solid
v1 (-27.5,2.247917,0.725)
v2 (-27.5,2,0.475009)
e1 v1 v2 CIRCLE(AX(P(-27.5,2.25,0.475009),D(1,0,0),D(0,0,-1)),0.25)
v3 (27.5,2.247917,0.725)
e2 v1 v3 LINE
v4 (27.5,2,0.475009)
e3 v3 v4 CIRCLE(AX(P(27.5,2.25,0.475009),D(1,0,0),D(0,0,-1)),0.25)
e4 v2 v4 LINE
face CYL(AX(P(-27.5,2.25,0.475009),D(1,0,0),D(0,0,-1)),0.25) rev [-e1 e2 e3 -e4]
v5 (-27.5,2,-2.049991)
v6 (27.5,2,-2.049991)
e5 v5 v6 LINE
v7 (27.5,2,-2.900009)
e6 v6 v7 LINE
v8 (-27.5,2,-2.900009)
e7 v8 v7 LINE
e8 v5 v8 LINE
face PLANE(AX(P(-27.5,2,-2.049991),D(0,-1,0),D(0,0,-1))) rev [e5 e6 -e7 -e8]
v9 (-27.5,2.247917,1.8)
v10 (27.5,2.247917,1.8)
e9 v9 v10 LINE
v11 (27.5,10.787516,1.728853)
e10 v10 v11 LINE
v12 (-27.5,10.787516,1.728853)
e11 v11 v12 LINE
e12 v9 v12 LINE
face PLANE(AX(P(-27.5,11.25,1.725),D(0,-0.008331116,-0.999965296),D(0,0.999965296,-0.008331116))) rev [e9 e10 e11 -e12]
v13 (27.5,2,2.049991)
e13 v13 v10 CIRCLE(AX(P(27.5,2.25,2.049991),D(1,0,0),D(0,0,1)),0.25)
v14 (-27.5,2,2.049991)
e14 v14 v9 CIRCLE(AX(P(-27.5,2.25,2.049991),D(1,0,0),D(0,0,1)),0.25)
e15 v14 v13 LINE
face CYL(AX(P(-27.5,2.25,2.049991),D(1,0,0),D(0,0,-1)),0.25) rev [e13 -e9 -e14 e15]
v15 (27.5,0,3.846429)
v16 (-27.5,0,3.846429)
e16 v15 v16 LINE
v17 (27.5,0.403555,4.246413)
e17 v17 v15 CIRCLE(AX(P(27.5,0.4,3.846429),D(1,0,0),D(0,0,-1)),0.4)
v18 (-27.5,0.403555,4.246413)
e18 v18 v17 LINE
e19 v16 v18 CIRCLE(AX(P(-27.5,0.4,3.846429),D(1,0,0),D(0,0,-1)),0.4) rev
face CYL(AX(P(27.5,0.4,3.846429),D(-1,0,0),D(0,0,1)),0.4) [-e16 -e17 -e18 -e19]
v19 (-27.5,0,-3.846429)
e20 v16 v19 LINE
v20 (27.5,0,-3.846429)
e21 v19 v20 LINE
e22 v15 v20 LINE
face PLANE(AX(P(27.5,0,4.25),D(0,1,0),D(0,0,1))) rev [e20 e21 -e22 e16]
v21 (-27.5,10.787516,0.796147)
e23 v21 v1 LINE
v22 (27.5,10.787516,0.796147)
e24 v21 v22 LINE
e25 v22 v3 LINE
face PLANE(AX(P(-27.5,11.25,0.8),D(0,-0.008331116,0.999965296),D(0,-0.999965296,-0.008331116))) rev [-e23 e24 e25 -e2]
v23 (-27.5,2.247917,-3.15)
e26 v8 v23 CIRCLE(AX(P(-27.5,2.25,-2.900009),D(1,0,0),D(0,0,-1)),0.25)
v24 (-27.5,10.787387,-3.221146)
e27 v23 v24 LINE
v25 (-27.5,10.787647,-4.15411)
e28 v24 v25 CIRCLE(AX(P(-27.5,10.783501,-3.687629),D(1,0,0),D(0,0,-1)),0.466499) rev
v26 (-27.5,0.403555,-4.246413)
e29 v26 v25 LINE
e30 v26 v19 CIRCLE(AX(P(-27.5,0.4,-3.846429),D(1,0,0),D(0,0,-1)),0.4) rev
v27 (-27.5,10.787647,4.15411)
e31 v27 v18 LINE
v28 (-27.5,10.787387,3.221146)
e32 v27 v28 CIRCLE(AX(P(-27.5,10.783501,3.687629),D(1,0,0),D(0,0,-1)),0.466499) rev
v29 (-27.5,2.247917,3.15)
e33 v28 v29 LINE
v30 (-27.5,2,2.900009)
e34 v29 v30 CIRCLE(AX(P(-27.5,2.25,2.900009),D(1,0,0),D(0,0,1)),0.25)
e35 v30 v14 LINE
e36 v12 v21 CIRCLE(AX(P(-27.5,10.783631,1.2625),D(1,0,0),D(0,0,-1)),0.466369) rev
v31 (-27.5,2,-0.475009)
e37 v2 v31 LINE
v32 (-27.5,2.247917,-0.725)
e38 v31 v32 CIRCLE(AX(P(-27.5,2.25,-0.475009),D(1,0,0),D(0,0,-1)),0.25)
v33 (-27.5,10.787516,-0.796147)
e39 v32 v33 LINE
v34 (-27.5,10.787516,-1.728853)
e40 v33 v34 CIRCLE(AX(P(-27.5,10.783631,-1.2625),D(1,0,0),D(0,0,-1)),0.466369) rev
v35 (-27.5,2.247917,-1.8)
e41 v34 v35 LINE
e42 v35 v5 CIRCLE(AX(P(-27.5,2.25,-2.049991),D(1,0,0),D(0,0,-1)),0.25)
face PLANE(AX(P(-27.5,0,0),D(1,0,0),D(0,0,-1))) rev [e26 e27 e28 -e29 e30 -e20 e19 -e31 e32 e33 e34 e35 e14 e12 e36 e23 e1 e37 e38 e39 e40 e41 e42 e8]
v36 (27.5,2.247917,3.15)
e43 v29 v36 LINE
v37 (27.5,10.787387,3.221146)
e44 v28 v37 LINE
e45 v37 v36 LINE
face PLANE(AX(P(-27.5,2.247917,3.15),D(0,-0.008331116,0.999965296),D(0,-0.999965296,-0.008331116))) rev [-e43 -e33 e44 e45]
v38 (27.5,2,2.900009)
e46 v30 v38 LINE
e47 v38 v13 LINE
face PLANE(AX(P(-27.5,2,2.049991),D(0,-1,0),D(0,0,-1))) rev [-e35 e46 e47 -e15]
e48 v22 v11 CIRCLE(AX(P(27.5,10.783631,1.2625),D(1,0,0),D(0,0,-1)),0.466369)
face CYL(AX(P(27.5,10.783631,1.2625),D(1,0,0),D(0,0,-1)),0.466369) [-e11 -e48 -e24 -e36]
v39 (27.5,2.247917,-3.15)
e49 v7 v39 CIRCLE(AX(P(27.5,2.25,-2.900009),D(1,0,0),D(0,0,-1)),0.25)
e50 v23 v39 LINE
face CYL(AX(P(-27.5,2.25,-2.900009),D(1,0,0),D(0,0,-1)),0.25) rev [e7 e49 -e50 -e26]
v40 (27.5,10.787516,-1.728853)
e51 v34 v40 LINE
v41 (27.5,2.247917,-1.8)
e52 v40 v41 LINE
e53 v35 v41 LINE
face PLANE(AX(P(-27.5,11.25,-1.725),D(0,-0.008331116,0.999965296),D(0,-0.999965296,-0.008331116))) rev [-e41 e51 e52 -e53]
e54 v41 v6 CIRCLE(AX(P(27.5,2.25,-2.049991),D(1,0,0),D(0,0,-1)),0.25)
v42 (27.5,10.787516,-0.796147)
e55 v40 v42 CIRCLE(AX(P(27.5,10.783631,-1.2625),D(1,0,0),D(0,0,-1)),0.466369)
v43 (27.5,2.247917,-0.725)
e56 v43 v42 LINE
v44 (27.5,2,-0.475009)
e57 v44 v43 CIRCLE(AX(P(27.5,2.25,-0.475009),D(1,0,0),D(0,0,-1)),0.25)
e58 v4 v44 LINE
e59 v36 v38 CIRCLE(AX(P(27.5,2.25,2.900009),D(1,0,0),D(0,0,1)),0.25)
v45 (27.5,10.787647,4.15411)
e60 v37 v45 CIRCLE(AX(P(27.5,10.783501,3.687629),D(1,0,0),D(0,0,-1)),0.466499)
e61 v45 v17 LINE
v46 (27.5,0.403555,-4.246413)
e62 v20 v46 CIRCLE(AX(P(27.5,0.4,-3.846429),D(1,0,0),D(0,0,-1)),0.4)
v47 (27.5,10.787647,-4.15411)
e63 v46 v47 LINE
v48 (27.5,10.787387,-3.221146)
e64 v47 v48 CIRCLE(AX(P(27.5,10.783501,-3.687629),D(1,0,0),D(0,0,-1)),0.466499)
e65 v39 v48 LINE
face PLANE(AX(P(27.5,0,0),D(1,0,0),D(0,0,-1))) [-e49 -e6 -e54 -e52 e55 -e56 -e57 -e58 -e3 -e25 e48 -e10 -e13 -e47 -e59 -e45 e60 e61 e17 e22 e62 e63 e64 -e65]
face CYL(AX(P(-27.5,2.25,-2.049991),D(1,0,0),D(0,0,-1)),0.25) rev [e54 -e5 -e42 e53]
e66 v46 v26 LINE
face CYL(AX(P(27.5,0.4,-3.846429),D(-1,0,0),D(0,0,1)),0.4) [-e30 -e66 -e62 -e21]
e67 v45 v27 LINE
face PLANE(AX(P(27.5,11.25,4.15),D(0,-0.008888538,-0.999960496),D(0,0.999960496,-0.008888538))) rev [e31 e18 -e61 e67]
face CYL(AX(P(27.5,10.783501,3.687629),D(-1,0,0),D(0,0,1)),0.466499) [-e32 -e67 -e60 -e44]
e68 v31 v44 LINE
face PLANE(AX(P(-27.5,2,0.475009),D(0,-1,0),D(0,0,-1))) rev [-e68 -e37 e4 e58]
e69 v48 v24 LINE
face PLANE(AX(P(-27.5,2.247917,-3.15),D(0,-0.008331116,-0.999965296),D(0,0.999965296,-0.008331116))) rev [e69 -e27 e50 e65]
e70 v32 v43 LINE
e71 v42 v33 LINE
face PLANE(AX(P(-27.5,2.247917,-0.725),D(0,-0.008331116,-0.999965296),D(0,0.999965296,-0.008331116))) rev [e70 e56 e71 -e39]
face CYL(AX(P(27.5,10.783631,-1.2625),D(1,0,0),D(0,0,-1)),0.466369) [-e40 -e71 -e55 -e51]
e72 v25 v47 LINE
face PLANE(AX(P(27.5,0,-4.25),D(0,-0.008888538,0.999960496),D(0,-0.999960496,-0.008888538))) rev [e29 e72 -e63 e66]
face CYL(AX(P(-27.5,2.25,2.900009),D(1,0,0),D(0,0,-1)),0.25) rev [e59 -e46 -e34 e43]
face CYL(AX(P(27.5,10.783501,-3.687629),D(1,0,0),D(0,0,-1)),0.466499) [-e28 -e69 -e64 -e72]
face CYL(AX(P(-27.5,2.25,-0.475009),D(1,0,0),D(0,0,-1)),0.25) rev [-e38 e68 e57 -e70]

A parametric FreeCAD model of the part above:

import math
import FreeCAD as App
import Part
import Sketcher
from FreeCAD import Vector
Q = App.Units.Quantity


def edges_at(feature, points):
    """Names of the edges that pass closest to the given points."""
    edges = feature.Shape.Edges
    near = lambda p: min(range(len(edges)), key=lambda i: edges[i].distToShape(Part.Vertex(*p))[0])
    return sorted({f"Edge{near(p) + 1}" for p in points})

doc = App.newDocument("Part")
body = doc.addObject("PartDesign::Body", "Body")

sketch1 = doc.addObject("Sketcher::SketchObject", "Sketch")
body.addObject(sketch1)
sketch1.AttachmentSupport = (doc.YZ_Plane, [""])
sketch1.MapMode = "FlatFace"
sketch1.addGeometry([
    Part.LineSegment(Vector(11.25, 4.15, 0), Vector(0, 4.25, 0)),
    Part.LineSegment(Vector(0, 4.25, 0), Vector(0, -4.25, 0)),
    Part.LineSegment(Vector(0, -4.25, 0), Vector(11.25, -4.15, 0)),
    Part.LineSegment(Vector(11.25, -4.15, 0), Vector(11.25, 4.15, 0)),
], False)
sketch1.addConstraint([
    Sketcher.Constraint("Coincident", 0, 2, 1, 1),
    Sketcher.Constraint("Coincident", 1, 2, 2, 1),
    Sketcher.Constraint("Coincident", 2, 2, 3, 1),
    Sketcher.Constraint("Coincident", 3, 2, 0, 1),
    Sketcher.Constraint("Vertical", 1),
    Sketcher.Constraint("Vertical", 3),
    Sketcher.Constraint("Symmetric", 0, 2, 1, 2, -1, 1),
    Sketcher.Constraint("Equal", 0, 2),
    Sketcher.Constraint("DistanceY", 1, 2, 1, 1, Q("8.5 mm")),
    Sketcher.Constraint("DistanceY", 3, 1, 3, 2, Q("8.3 mm")),
    Sketcher.Constraint("DistanceX", -1, 1, 2, 2, Q("11.25 mm")),
])
pad1 = doc.addObject("PartDesign::Pad", "Pad")
body.addObject(pad1)
pad1.Profile = sketch1
pad1.Length = 55
pad1.Midplane = True

sketch2 = doc.addObject("Sketcher::SketchObject", "Sketch001")
body.addObject(sketch2)
sketch2.AttachmentSupport = (doc.YZ_Plane, [""])
sketch2.MapMode = "FlatFace"
sketch2.AttachmentOffset = App.Placement(Vector(0, 0, 27.5), App.Rotation())
sketch2.addGeometry([
    Part.LineSegment(Vector(11.25, 0.8, 0), Vector(2.247917, 0.725, 0)),
    Part.ArcOfCircle(Part.Circle(Vector(2.25, 0.475009, 0), Vector(0, 0, 1), 0.25), math.radians(90.477343), math.radians(180)),
    Part.LineSegment(Vector(2, 0.475009, 0), Vector(2, -0.475009, 0)),
    Part.ArcOfCircle(Part.Circle(Vector(2.25, -0.475009, 0), Vector(0, 0, 1), 0.25), math.radians(180), math.radians(269.522657)),
    Part.LineSegment(Vector(2.247917, -0.725, 0), Vector(11.25, -0.8, 0)),
    Part.LineSegment(Vector(11.25, -0.8, 0), Vector(11.25, 0.8, 0)),
    Part.LineSegment(Vector(11.25, 1.725, 0), Vector(11.25, 3.225, 0)),
    Part.LineSegment(Vector(11.25, 3.225, 0), Vector(2.247917, 3.15, 0)),
    Part.ArcOfCircle(Part.Circle(Vector(2.25, 2.900009, 0), Vector(0, 0, 1), 0.25), math.radians(90.477343), math.radians(180)),
    Part.LineSegment(Vector(2, 2.900009, 0), Vector(2, 2.049991, 0)),
    Part.ArcOfCircle(Part.Circle(Vector(2.25, 2.049991, 0), Vector(0, 0, 1), 0.25), math.radians(180), math.radians(269.522657)),
    Part.LineSegment(Vector(2.247917, 1.8, 0), Vector(11.25, 1.725, 0)),
    Part.LineSegment(Vector(11.25, -3.225, 0), Vector(11.25, -1.725, 0)),
    Part.LineSegment(Vector(11.25, -1.725, 0), Vector(2.247917, -1.8, 0)),
    Part.ArcOfCircle(Part.Circle(Vector(2.25, -2.049991, 0), Vector(0, 0, 1), 0.25), math.radians(90.477343), math.radians(180)),
    Part.LineSegment(Vector(2, -2.049991, 0), Vector(2, -2.900009, 0)),
    Part.ArcOfCircle(Part.Circle(Vector(2.25, -2.900009, 0), Vector(0, 0, 1), 0.25), math.radians(180), math.radians(269.522657)),
    Part.LineSegment(Vector(2.247917, -3.15, 0), Vector(11.25, -3.225, 0)),
], False)
sketch2.addConstraint([
    Sketcher.Constraint("Tangent", 0, 2, 1, 1),
    Sketcher.Constraint("Tangent", 1, 2, 2, 1),
    Sketcher.Constraint("Tangent", 2, 2, 3, 1),
    Sketcher.Constraint("Tangent", 3, 2, 4, 1),
    Sketcher.Constraint("Coincident", 4, 2, 5, 1),
    Sketcher.Constraint("Coincident", 5, 2, 0, 1),
    Sketcher.Constraint("Coincident", 6, 2, 7, 1),
    Sketcher.Constraint("Tangent", 7, 2, 8, 1),
    Sketcher.Constraint("Tangent", 8, 2, 9, 1),
    Sketcher.Constraint("Tangent", 9, 2, 10, 1),
    Sketcher.Constraint("Tangent", 10, 2, 11, 1),
    Sketcher.Constraint("Coincident", 11, 2, 6, 1),
    Sketcher.Constraint("Coincident", 12, 2, 13, 1),
    Sketcher.Constraint("Tangent", 13, 2, 14, 1),
    Sketcher.Constraint("Tangent", 14, 2, 15, 1),
    Sketcher.Constraint("Tangent", 15, 2, 16, 1),
    Sketcher.Constraint("Tangent", 16, 2, 17, 1),
    Sketcher.Constraint("Coincident", 17, 2, 12, 1),
    Sketcher.Constraint("Vertical", 2),
    Sketcher.Constraint("Vertical", 5),
    Sketcher.Constraint("Vertical", 6),
    Sketcher.Constraint("Vertical", 9),
    Sketcher.Constraint("Vertical", 12),
    Sketcher.Constraint("Vertical", 15),
    Sketcher.Constraint("Equal", 1, 3),
    Sketcher.Constraint("Equal", 3, 8),
    Sketcher.Constraint("Equal", 8, 10),
    Sketcher.Constraint("Equal", 10, 14),
    Sketcher.Constraint("Equal", 14, 16),
    Sketcher.Constraint("Symmetric", 10, 3, 14, 3, -1),
    Sketcher.Constraint("Symmetric", 0, 2, 3, 2, -1),
    Sketcher.Constraint("Symmetric", 11, 2, 12, 2, -1),
    Sketcher.Constraint("Symmetric", 7, 2, 16, 2, -1),
    Sketcher.Constraint("Parallel", 0, 7),
    Sketcher.Constraint("Parallel", 4, 11),
    Sketcher.Constraint("Vertical", 3, 3, 8, 3),
    Sketcher.Constraint("Vertical", 5, 2, 6, 2),
    Sketcher.Constraint("Radius", 1, Q("0.25 mm")),
    Sketcher.Constraint("DistanceY", 5, 1, 5, 2, Q("1.6 mm")),
    Sketcher.Constraint("DistanceY", 6, 1, 6, 2, Q("1.5 mm")),
    Sketcher.Constraint("DistanceX", -1, 1, 1, 2, Q("2 mm")),
    Sketcher.Constraint("DistanceX", 3, 3, 4, 2, Q("9 mm")),
    Sketcher.Constraint("DistanceY", -1, 1, 10, 2, Q("1.8 mm")),
    Sketcher.Constraint("DistanceY", -1, 1, 7, 2, Q("3.15 mm")),
])
pocket1 = doc.addObject("PartDesign::Pocket", "Pocket")
body.addObject(pocket1)
pocket1.Profile = sketch2
pocket1.Type = "ThroughAll"
doc.recompute()

fillet = doc.addObject("PartDesign::Fillet", "Fillet")
body.addObject(fillet)
fillet.Base = (pocket1, edges_at(pocket1, [(0, 11.25, 3.225), (0, 11.25, 4.15)]))
fillet.Radius = 0.466499
doc.recompute()

fillet2 = doc.addObject("PartDesign::Fillet", "Fillet001")
body.addObject(fillet2)
fillet2.Base = (fillet, edges_at(fillet, [(0, 11.25, 0.8), (0, 11.25, 1.725)]))
fillet2.Radius = 0.466369
doc.recompute()

fillet3 = doc.addObject("PartDesign::Fillet", "Fillet002")
body.addObject(fillet3)
fillet3.Base = (fillet2, edges_at(fillet2, [(0, 11.25, -0.8), (0, 11.25, -1.725)]))
fillet3.Radius = 0.466369
doc.recompute()

fillet4 = doc.addObject("PartDesign::Fillet", "Fillet003")
body.addObject(fillet4)
fillet4.Base = (fillet3, edges_at(fillet3, [(0, 11.25, -3.225), (0, 11.25, -4.15)]))
fillet4.Radius = 0.466499
doc.recompute()

fillet5 = doc.addObject("PartDesign::Fillet", "Fillet004")
body.addObject(fillet5)
fillet5.Base = (fillet4, edges_at(fillet4, [(0, 0, -4.25), (0, 0, 4.25)]))
fillet5.Radius = 0.4

doc.recompute()
